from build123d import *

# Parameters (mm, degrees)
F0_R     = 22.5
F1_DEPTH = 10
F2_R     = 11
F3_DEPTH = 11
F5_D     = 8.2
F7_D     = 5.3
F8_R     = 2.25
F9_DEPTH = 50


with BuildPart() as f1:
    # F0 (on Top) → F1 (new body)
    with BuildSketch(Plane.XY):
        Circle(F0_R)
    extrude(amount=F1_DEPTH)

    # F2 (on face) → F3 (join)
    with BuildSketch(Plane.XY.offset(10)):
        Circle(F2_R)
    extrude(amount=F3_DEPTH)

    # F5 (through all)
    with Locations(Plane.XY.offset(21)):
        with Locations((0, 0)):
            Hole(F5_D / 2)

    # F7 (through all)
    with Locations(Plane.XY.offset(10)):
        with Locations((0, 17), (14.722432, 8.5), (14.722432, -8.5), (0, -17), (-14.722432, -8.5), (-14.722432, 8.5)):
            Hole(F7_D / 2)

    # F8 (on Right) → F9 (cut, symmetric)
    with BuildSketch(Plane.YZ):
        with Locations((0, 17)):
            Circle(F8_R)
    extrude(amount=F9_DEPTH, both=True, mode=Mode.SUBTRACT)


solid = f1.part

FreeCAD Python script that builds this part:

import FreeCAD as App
import Part
import Sketcher

V = App.Vector

doc = App.newDocument("Part")
body = doc.addObject("PartDesign::Body", "Body")

sketch1 = body.newObject("Sketcher::SketchObject", "Sketch")
sketch1.AttachmentSupport = (doc.getObject("XY_Plane"), [""])
sketch1.MapMode = "FlatFace"
sketch1.addGeometry(Part.Circle(V(0, 0, 0), V(0, 0, 1), 22), False)
sketch1.addConstraint(Sketcher.Constraint("Coincident", 0, 3, -1, 1))
sketch1.addConstraint(Sketcher.Constraint("Diameter", 0, 45.0))
pad1 = body.newObject("PartDesign::Pad", "Pad")
pad1.Profile = sketch1
pad1.Length = 10

sketch2 = body.newObject("Sketcher::SketchObject", "Sketch001")
sketch2.AttachmentSupport = (doc.getObject("XY_Plane"), [""])
sketch2.MapMode = "FlatFace"
sketch2.AttachmentOffset = App.Placement(V(0, 0, 10), App.Rotation())
sketch2.addGeometry(Part.Circle(V(0, 0, 0), V(0, 0, 1), 11), False)
sketch2.addConstraint(Sketcher.Constraint("Coincident", 0, 3, -1, 1))
sketch2.addConstraint(Sketcher.Constraint("Diameter", 0, 22.0))
pad2 = body.newObject("PartDesign::Pad", "Pad001")
pad2.Profile = sketch2
pad2.Length = 11

sketch3 = body.newObject("Sketcher::SketchObject", "Sketch002")
sketch3.AttachmentSupport = (doc.getObject("XY_Plane"), [""])
sketch3.MapMode = "FlatFace"
sketch3.AttachmentOffset = App.Placement(V(0, 0, 21), App.Rotation())
sketch3.addGeometry(Part.Circle(V(0, 0, 0), V(0, 0, 1), 4.1), False)
sketch3.addConstraint(Sketcher.Constraint("Coincident", 0, 3, -1, 1))
sketch3.addConstraint(Sketcher.Constraint("Diameter", 0, 8.2))
doc.recompute()
hole = body.newObject("PartDesign::Hole", "Hole")
hole.Profile = sketch3
hole.ThreadType = "None"
hole.Diameter = 8.2
hole.DepthType = "ThroughAll"

sketch4 = body.newObject("Sketcher::SketchObject", "Sketch003")
sketch4.AttachmentSupport = (doc.getObject("XY_Plane"), [""])
sketch4.MapMode = "FlatFace"
sketch4.AttachmentOffset = App.Placement(V(0, 0, 10), App.Rotation())
sketch4.addGeometry(Part.Circle(V(0, 17, 0), V(0, 0, 1), 2.6), False)
sketch4.addGeometry(Part.Circle(V(14.7, 8.5, 0), V(0, 0, 1), 2.6), False)
sketch4.addGeometry(Part.Circle(V(14.7, -8.5, 0), V(0, 0, 1), 2.6), False)
sketch4.addGeometry(Part.Circle(V(0, -17, 0), V(0, 0, 1), 2.6), False)
sketch4.addGeometry(Part.Circle(V(-14.7, -8.5, 0), V(0, 0, 1), 2.6), False)
sketch4.addGeometry(Part.Circle(V(-14.7, 8.5, 0), V(0, 0, 1), 2.6), False)
sketch4.addConstraint(Sketcher.Constraint("Equal", 0, 1))
sketch4.addConstraint(Sketcher.Constraint("Equal", 1, 2))
sketch4.addConstraint(Sketcher.Constraint("Equal", 2, 3))
sketch4.addConstraint(Sketcher.Constraint("Equal", 3, 4))
sketch4.addConstraint(Sketcher.Constraint("Equal", 4, 5))
sketch4.addConstraint(Sketcher.Constraint("Symmetric", 0, 3, 3, 3, -1, 1))
sketch4.addConstraint(Sketcher.Constraint("Symmetric", 1, 3, 4, 3, -1, 1))
sketch4.addConstraint(Sketcher.Constraint("Symmetric", 2, 3, 5, 3, -1, 1))
sketch4.addConstraint(Sketcher.Constraint("Symmetric", 2, 3, 4, 3, -2))
sketch4.addConstraint(Sketcher.Constraint("PointOnObject", 0, 3, -2))
sketch4.addConstraint(Sketcher.Constraint("Diameter", 0, 5.3))
sketch4.addConstraint(Sketcher.Constraint("DistanceY", -1, 1, 0, 3, 17.0))
sketch4.addConstraint(Sketcher.Constraint("DistanceY", 2, 3, 1, 3, 17.0))
sketch4.addConstraint(Sketcher.Constraint("DistanceX", -1, 1, 1, 3, 14.722432))
doc.recompute()
hole2 = body.newObject("PartDesign::Hole", "Hole001")
hole2.Profile = sketch4
hole2.ThreadType = "None"
hole2.Diameter = 5.3
hole2.DepthType = "ThroughAll"

sketch5 = body.newObject("Sketcher::SketchObject", "Sketch004")
sketch5.AttachmentSupport = (doc.getObject("YZ_Plane"), [""])
sketch5.MapMode = "FlatFace"
sketch5.addGeometry(Part.Circle(V(0, 17, 0), V(0, 0, 1), 2.2), False)
sketch5.addConstraint(Sketcher.Constraint("PointOnObject", 0, 3, -2))
sketch5.addConstraint(Sketcher.Constraint("Diameter", 0, 4.5))
sketch5.addConstraint(Sketcher.Constraint("DistanceY", -1, 1, 0, 3, 17.0))
pocket1 = body.newObject("PartDesign::Pocket", "Pocket")
pocket1.Profile = sketch5
pocket1.Length = 100
pocket1.Midplane = True

doc.recompute()
